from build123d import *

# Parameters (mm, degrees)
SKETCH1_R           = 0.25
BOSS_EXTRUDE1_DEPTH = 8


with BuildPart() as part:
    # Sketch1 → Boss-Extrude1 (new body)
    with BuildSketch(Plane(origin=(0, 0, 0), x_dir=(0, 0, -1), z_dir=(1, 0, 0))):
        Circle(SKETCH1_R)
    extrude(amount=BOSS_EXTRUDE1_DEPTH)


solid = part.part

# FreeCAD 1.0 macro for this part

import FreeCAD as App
import Part
import Sketcher
Q = App.Units.Quantity

doc = App.newDocument("Part")
params = doc.addObject("Spreadsheet::Sheet", "Params")
for row, (alias, value) in enumerate([
    ("sketch1_diameter", "0.5 mm"),
    ("pad1_length", "8 mm"),
], start=1):
    params.set(f"A{row}", alias)
    params.set(f"B{row}", "=" + value)
    params.setAlias(f"B{row}", alias)

body = doc.addObject("PartDesign::Body", "Body")

sketch1 = doc.addObject("Sketcher::SketchObject", "Sketch")
body.addObject(sketch1)
sketch1.AttachmentSupport = (doc.YZ_Plane, [""])
sketch1.MapMode = "FlatFace"
sketch1.addGeometry(Part.Circle(App.Vector(0, 0, 0), App.Vector(0, 0, 1), 0.25), False)
sketch1.addConstraint(Sketcher.Constraint("Coincident", 0, 3, -1, 1))
sketch1.addConstraint(Sketcher.Constraint("Diameter", 0, Q("0.5 mm")))
sketch1.setExpression("Constraints[1]", "Params.sketch1_diameter")
pad1 = doc.addObject("PartDesign::Pad", "Pad")
body.addObject(pad1)
pad1.Profile = sketch1
pad1.setExpression("Length", "Params.pad1_length")

doc.recompute()
